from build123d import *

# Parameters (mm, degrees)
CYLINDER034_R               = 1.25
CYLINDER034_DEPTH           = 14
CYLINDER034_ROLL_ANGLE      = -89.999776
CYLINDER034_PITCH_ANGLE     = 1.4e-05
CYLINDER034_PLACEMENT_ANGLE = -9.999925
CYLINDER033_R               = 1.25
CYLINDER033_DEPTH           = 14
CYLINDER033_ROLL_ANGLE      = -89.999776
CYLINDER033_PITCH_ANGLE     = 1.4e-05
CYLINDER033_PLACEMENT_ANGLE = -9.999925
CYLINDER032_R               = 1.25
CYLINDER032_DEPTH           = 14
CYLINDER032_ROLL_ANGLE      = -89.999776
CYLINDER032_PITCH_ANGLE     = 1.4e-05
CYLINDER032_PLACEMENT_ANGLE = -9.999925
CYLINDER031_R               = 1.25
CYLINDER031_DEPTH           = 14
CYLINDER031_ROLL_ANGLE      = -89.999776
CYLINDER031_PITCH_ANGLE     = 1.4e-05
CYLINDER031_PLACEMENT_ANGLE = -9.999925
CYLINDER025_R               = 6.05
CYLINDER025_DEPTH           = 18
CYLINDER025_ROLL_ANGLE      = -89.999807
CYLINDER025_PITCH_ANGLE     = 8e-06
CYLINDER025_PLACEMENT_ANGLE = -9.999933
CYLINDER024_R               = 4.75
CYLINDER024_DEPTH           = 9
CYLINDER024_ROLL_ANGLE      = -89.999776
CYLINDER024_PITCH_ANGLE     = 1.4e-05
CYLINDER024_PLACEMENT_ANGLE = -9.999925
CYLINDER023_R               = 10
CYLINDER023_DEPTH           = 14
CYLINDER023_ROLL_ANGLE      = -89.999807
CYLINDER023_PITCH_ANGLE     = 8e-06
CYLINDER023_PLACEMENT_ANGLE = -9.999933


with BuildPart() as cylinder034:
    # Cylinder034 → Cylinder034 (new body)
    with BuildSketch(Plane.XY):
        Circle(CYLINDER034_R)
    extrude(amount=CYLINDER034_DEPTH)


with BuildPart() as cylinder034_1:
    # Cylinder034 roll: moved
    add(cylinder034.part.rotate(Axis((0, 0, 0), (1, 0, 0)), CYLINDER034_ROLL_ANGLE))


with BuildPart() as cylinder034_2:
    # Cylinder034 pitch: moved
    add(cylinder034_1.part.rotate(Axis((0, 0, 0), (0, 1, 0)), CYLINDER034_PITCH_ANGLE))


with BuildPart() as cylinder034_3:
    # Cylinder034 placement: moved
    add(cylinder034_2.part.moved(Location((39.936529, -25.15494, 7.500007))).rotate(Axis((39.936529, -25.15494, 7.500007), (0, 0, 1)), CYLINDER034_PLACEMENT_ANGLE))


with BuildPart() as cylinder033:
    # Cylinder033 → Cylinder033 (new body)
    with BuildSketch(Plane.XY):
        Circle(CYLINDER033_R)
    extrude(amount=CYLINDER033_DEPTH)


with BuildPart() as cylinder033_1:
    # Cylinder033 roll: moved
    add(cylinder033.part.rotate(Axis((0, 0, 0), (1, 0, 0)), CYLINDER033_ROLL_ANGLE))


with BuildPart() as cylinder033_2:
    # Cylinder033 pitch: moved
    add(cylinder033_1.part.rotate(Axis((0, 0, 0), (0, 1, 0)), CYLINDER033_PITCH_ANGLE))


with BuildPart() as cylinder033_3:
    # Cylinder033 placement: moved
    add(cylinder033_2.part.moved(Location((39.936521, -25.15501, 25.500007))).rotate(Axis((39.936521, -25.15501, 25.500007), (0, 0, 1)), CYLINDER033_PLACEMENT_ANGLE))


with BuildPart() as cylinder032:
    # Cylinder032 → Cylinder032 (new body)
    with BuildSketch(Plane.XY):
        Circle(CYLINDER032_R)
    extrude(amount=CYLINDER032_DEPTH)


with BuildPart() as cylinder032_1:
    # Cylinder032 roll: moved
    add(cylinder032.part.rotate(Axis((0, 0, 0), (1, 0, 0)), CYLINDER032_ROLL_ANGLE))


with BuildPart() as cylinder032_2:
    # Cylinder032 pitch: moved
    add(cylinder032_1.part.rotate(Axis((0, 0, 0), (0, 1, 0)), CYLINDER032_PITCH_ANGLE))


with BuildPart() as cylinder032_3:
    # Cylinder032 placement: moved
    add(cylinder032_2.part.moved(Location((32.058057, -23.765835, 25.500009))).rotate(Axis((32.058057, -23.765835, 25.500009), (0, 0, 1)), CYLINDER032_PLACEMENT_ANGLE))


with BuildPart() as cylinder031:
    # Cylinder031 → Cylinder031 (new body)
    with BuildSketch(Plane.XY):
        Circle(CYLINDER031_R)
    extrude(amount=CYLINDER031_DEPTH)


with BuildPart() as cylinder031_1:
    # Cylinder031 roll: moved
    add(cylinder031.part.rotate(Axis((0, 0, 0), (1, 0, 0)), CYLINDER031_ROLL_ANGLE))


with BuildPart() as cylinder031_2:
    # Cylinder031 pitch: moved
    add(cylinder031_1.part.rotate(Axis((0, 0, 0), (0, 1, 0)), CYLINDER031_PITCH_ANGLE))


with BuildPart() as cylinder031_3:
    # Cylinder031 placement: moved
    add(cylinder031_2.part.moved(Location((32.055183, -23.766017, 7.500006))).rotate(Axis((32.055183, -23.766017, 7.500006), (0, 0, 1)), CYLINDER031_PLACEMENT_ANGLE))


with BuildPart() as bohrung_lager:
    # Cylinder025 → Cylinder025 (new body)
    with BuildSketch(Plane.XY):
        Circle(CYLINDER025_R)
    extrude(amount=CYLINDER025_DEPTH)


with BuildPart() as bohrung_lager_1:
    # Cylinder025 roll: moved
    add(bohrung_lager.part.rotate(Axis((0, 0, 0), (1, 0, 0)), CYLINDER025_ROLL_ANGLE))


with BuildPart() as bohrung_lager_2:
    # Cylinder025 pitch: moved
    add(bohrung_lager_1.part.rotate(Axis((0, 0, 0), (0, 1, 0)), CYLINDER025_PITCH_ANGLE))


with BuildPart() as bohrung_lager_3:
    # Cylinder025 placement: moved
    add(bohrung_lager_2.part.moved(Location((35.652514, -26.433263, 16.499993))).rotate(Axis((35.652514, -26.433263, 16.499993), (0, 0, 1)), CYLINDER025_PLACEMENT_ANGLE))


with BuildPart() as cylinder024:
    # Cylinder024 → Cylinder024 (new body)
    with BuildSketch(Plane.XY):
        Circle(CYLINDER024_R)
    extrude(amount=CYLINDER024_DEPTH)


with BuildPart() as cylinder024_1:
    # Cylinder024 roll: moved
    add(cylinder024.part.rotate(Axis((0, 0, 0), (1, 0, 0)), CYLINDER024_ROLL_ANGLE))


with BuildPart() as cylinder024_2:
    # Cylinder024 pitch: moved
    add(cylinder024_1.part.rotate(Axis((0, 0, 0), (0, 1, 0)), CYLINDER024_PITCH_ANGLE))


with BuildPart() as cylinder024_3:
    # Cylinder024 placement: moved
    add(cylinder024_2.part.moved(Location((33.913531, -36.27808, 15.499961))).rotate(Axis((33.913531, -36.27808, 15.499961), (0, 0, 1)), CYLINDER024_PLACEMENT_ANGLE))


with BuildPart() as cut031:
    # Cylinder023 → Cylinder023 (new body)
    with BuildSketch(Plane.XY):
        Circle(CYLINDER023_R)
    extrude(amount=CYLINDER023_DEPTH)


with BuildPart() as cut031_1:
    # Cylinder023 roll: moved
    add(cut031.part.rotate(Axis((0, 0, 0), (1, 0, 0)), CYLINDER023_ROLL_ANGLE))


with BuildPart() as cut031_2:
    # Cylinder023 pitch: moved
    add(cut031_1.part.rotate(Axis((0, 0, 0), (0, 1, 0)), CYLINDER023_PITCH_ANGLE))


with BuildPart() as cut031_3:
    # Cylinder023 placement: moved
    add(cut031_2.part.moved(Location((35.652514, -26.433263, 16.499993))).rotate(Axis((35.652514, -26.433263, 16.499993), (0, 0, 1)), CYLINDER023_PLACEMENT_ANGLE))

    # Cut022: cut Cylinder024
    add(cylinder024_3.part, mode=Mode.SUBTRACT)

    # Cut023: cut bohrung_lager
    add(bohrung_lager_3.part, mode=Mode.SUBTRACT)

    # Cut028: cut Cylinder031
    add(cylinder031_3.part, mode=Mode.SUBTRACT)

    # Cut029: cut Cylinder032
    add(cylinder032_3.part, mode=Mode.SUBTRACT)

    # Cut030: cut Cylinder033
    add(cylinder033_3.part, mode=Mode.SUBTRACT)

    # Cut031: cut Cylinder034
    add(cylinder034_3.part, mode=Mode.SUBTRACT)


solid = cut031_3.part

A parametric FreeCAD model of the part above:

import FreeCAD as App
import Part
import Sketcher
Q = App.Units.Quantity

doc = App.newDocument("Part")
body = doc.addObject("PartDesign::Body", "Body")

# Sketch on XY plane
sketch1 = body.newObject("Sketcher::SketchObject", "Sketch")
sketch1.AttachmentSupport = (doc.getObject("XY_Plane"), [""])
sketch1.MapMode = "FlatFace"
sketch1.addGeometry(Part.Circle(App.Vector(0, 0, 0), App.Vector(0, 0, 1), 1.2), False)
sketch1.addConstraint([
    Sketcher.Constraint("Coincident", 0, 3, -1, 1),
    Sketcher.Constraint("Diameter", 0, Q("2.5 mm")),
])
pad1 = body.newObject("PartDesign::Pad", "Pad")
pad1.Profile = sketch1
pad1.Length = 14
body2 = doc.addObject("PartDesign::Body", "Body001")
doc.recompute()

body.Placement = App.Placement(App.Vector(0, 0, 0), App.Rotation(App.Vector(1, 0, 0), 270.000224))
boolean = body2.newObject("PartDesign::Boolean", "Boolean")
boolean.Type = "Fuse"
boolean.addObjects([body])
body3 = doc.addObject("PartDesign::Body", "Body002")
doc.recompute()

body2.Placement = App.Placement(App.Vector(0, 0, 0), App.Rotation(App.Vector(0, 1, 0), 0.000014))
boolean2 = body3.newObject("PartDesign::Boolean", "Boolean001")
boolean2.Type = "Fuse"
boolean2.addObjects([body2])
body4 = doc.addObject("PartDesign::Body", "Body003")
doc.recompute()

body3.Placement = App.Placement(App.Vector(39.936529, -25.15494, 7.500007), App.Rotation(App.Vector(0, 0, 1), 350.000075))
boolean3 = body4.newObject("PartDesign::Boolean", "Boolean002")
boolean3.Type = "Fuse"
boolean3.addObjects([body3])
body5 = doc.addObject("PartDesign::Body", "Body004")

# Sketch on XY plane
sketch2 = body5.newObject("Sketcher::SketchObject", "Sketch001")
sketch2.AttachmentSupport = (doc.getObject("XY_Plane004"), [""])
sketch2.MapMode = "FlatFace"
sketch2.addGeometry(Part.Circle(App.Vector(0, 0, 0), App.Vector(0, 0, 1), 1.2), False)
sketch2.addConstraint([
    Sketcher.Constraint("Coincident", 0, 3, -1, 1),
    Sketcher.Constraint("Diameter", 0, Q("2.5 mm")),
])
pad2 = body5.newObject("PartDesign::Pad", "Pad001")
pad2.Profile = sketch2
pad2.Length = 14
body6 = doc.addObject("PartDesign::Body", "Body005")
doc.recompute()

body5.Placement = App.Placement(App.Vector(0, 0, 0), App.Rotation(App.Vector(1, 0, 0), 270.000224))
boolean4 = body6.newObject("PartDesign::Boolean", "Boolean003")
boolean4.Type = "Fuse"
boolean4.addObjects([body5])
body7 = doc.addObject("PartDesign::Body", "Body006")
doc.recompute()

body6.Placement = App.Placement(App.Vector(0, 0, 0), App.Rotation(App.Vector(0, 1, 0), 0.000014))
boolean5 = body7.newObject("PartDesign::Boolean", "Boolean004")
boolean5.Type = "Fuse"
boolean5.addObjects([body6])
body8 = doc.addObject("PartDesign::Body", "Body007")
doc.recompute()

body7.Placement = App.Placement(App.Vector(39.936521, -25.15501, 25.500007), App.Rotation(App.Vector(0, 0, 1), 350.000075))
boolean6 = body8.newObject("PartDesign::Boolean", "Boolean005")
boolean6.Type = "Fuse"
boolean6.addObjects([body7])
body9 = doc.addObject("PartDesign::Body", "Body008")

# Sketch on XY plane
sketch3 = body9.newObject("Sketcher::SketchObject", "Sketch002")
sketch3.AttachmentSupport = (doc.getObject("XY_Plane008"), [""])
sketch3.MapMode = "FlatFace"
sketch3.addGeometry(Part.Circle(App.Vector(0, 0, 0), App.Vector(0, 0, 1), 1.2), False)
sketch3.addConstraint([
    Sketcher.Constraint("Coincident", 0, 3, -1, 1),
    Sketcher.Constraint("Diameter", 0, Q("2.5 mm")),
])
pad3 = body9.newObject("PartDesign::Pad", "Pad002")
pad3.Profile = sketch3
pad3.Length = 14
body10 = doc.addObject("PartDesign::Body", "Body009")
doc.recompute()

body9.Placement = App.Placement(App.Vector(0, 0, 0), App.Rotation(App.Vector(1, 0, 0), 270.000224))
boolean7 = body10.newObject("PartDesign::Boolean", "Boolean006")
boolean7.Type = "Fuse"
boolean7.addObjects([body9])
body11 = doc.addObject("PartDesign::Body", "Body010")
doc.recompute()

body10.Placement = App.Placement(App.Vector(0, 0, 0), App.Rotation(App.Vector(0, 1, 0), 0.000014))
boolean8 = body11.newObject("PartDesign::Boolean", "Boolean007")
boolean8.Type = "Fuse"
boolean8.addObjects([body10])
body12 = doc.addObject("PartDesign::Body", "Body011")
doc.recompute()

body11.Placement = App.Placement(App.Vector(32.058057, -23.765835, 25.500009), App.Rotation(App.Vector(0, 0, 1), 350.000075))
boolean9 = body12.newObject("PartDesign::Boolean", "Boolean008")
boolean9.Type = "Fuse"
boolean9.addObjects([body11])
body13 = doc.addObject("PartDesign::Body", "Body012")

# Sketch on XY plane
sketch4 = body13.newObject("Sketcher::SketchObject", "Sketch003")
sketch4.AttachmentSupport = (doc.getObject("XY_Plane012"), [""])
sketch4.MapMode = "FlatFace"
sketch4.addGeometry(Part.Circle(App.Vector(0, 0, 0), App.Vector(0, 0, 1), 1.2), False)
sketch4.addConstraint([
    Sketcher.Constraint("Coincident", 0, 3, -1, 1),
    Sketcher.Constraint("Diameter", 0, Q("2.5 mm")),
])
pad4 = body13.newObject("PartDesign::Pad", "Pad003")
pad4.Profile = sketch4
pad4.Length = 14
body14 = doc.addObject("PartDesign::Body", "Body013")
doc.recompute()

body13.Placement = App.Placement(App.Vector(0, 0, 0), App.Rotation(App.Vector(1, 0, 0), 270.000224))
boolean10 = body14.newObject("PartDesign::Boolean", "Boolean009")
boolean10.Type = "Fuse"
boolean10.addObjects([body13])
body15 = doc.addObject("PartDesign::Body", "Body014")
doc.recompute()

body14.Placement = App.Placement(App.Vector(0, 0, 0), App.Rotation(App.Vector(0, 1, 0), 0.000014))
boolean11 = body15.newObject("PartDesign::Boolean", "Boolean010")
boolean11.Type = "Fuse"
boolean11.addObjects([body14])
body16 = doc.addObject("PartDesign::Body", "Body015")
doc.recompute()

body15.Placement = App.Placement(App.Vector(32.055183, -23.766017, 7.500006), App.Rotation(App.Vector(0, 0, 1), 350.000075))
boolean12 = body16.newObject("PartDesign::Boolean", "Boolean011")
boolean12.Type = "Fuse"
boolean12.addObjects([body15])
body17 = doc.addObject("PartDesign::Body", "Body016")

# Sketch on XY plane
sketch5 = body17.newObject("Sketcher::SketchObject", "Sketch004")
sketch5.AttachmentSupport = (doc.getObject("XY_Plane016"), [""])
sketch5.MapMode = "FlatFace"
sketch5.addGeometry(Part.Circle(App.Vector(0, 0, 0), App.Vector(0, 0, 1), 6), False)
sketch5.addConstraint([
    Sketcher.Constraint("Coincident", 0, 3, -1, 1),
    Sketcher.Constraint("Diameter", 0, Q("12.1 mm")),
])
pad5 = body17.newObject("PartDesign::Pad", "Pad004")
pad5.Profile = sketch5
pad5.Length = 18
body18 = doc.addObject("PartDesign::Body", "Body017")
doc.recompute()

body17.Placement = App.Placement(App.Vector(0, 0, 0), App.Rotation(App.Vector(1, 0, 0), 270.000193))
boolean13 = body18.newObject("PartDesign::Boolean", "Boolean012")
boolean13.Type = "Fuse"
boolean13.addObjects([body17])
body19 = doc.addObject("PartDesign::Body", "Body018")
doc.recompute()

body18.Placement = App.Placement(App.Vector(0, 0, 0), App.Rotation(App.Vector(0, 1, 0), 0.000008))
boolean14 = body19.newObject("PartDesign::Boolean", "Boolean013")
boolean14.Type = "Fuse"
boolean14.addObjects([body18])
body20 = doc.addObject("PartDesign::Body", "Body019")
doc.recompute()

body19.Placement = App.Placement(App.Vector(35.652514, -26.433263, 16.499993), App.Rotation(App.Vector(0, 0, 1), 350.000067))
boolean15 = body20.newObject("PartDesign::Boolean", "Boolean014")
boolean15.Type = "Fuse"
boolean15.addObjects([body19])
body21 = doc.addObject("PartDesign::Body", "Body020")

# Sketch on XY plane
sketch6 = body21.newObject("Sketcher::SketchObject", "Sketch005")
sketch6.AttachmentSupport = (doc.getObject("XY_Plane020"), [""])
sketch6.MapMode = "FlatFace"
sketch6.addGeometry(Part.Circle(App.Vector(0, 0, 0), App.Vector(0, 0, 1), 4.8), False)
sketch6.addConstraint([
    Sketcher.Constraint("Coincident", 0, 3, -1, 1),
    Sketcher.Constraint("Diameter", 0, Q("9.5 mm")),
])
pad6 = body21.newObject("PartDesign::Pad", "Pad005")
pad6.Profile = sketch6
pad6.Length = 9
body22 = doc.addObject("PartDesign::Body", "Body021")
doc.recompute()

body21.Placement = App.Placement(App.Vector(0, 0, 0), App.Rotation(App.Vector(1, 0, 0), 270.000224))
boolean16 = body22.newObject("PartDesign::Boolean", "Boolean015")
boolean16.Type = "Fuse"
boolean16.addObjects([body21])
body23 = doc.addObject("PartDesign::Body", "Body022")
doc.recompute()

body22.Placement = App.Placement(App.Vector(0, 0, 0), App.Rotation(App.Vector(0, 1, 0), 0.000014))
boolean17 = body23.newObject("PartDesign::Boolean", "Boolean016")
boolean17.Type = "Fuse"
boolean17.addObjects([body22])
body24 = doc.addObject("PartDesign::Body", "Body023")
doc.recompute()

body23.Placement = App.Placement(App.Vector(33.913531, -36.27808, 15.499961), App.Rotation(App.Vector(0, 0, 1), 350.000075))
boolean18 = body24.newObject("PartDesign::Boolean", "Boolean017")
boolean18.Type = "Fuse"
boolean18.addObjects([body23])
body25 = doc.addObject("PartDesign::Body", "Body024")

# Sketch on XY plane
sketch7 = body25.newObject("Sketcher::SketchObject", "Sketch006")
sketch7.AttachmentSupport = (doc.getObject("XY_Plane024"), [""])
sketch7.MapMode = "FlatFace"
sketch7.addGeometry(Part.Circle(App.Vector(0, 0, 0), App.Vector(0, 0, 1), 10), False)
sketch7.addConstraint([
    Sketcher.Constraint("Coincident", 0, 3, -1, 1),
    Sketcher.Constraint("Diameter", 0, Q("20 mm")),
])
pad7 = body25.newObject("PartDesign::Pad", "Pad006")
pad7.Profile = sketch7
pad7.Length = 14
body26 = doc.addObject("PartDesign::Body", "Body025")
doc.recompute()

body25.Placement = App.Placement(App.Vector(0, 0, 0), App.Rotation(App.Vector(1, 0, 0), 270.000193))
boolean19 = body26.newObject("PartDesign::Boolean", "Boolean018")
boolean19.Type = "Fuse"
boolean19.addObjects([body25])
body27 = doc.addObject("PartDesign::Body", "Body026")
doc.recompute()

body26.Placement = App.Placement(App.Vector(0, 0, 0), App.Rotation(App.Vector(0, 1, 0), 0.000008))
boolean20 = body27.newObject("PartDesign::Boolean", "Boolean019")
boolean20.Type = "Fuse"
boolean20.addObjects([body26])
body28 = doc.addObject("PartDesign::Body", "Body027")
doc.recompute()

body27.Placement = App.Placement(App.Vector(35.652514, -26.433263, 16.499993), App.Rotation(App.Vector(0, 0, 1), 350.000067))
boolean21 = body28.newObject("PartDesign::Boolean", "Boolean020")
boolean21.Type = "Fuse"
boolean21.addObjects([body27])
doc.recompute()

boolean22 = body28.newObject("PartDesign::Boolean", "Boolean021")
boolean22.Type = "Cut"
boolean22.addObjects([body24])
doc.recompute()

boolean23 = body28.newObject("PartDesign::Boolean", "Boolean022")
boolean23.Type = "Cut"
boolean23.addObjects([body20])
doc.recompute()

boolean24 = body28.newObject("PartDesign::Boolean", "Boolean023")
boolean24.Type = "Cut"
boolean24.addObjects([body16])
doc.recompute()

boolean25 = body28.newObject("PartDesign::Boolean", "Boolean024")
boolean25.Type = "Cut"
boolean25.addObjects([body12])
doc.recompute()

boolean26 = body28.newObject("PartDesign::Boolean", "Boolean025")
boolean26.Type = "Cut"
boolean26.addObjects([body8])
doc.recompute()

boolean27 = body28.newObject("PartDesign::Boolean", "Boolean026")
boolean27.Type = "Cut"
boolean27.addObjects([body4])

doc.recompute()
